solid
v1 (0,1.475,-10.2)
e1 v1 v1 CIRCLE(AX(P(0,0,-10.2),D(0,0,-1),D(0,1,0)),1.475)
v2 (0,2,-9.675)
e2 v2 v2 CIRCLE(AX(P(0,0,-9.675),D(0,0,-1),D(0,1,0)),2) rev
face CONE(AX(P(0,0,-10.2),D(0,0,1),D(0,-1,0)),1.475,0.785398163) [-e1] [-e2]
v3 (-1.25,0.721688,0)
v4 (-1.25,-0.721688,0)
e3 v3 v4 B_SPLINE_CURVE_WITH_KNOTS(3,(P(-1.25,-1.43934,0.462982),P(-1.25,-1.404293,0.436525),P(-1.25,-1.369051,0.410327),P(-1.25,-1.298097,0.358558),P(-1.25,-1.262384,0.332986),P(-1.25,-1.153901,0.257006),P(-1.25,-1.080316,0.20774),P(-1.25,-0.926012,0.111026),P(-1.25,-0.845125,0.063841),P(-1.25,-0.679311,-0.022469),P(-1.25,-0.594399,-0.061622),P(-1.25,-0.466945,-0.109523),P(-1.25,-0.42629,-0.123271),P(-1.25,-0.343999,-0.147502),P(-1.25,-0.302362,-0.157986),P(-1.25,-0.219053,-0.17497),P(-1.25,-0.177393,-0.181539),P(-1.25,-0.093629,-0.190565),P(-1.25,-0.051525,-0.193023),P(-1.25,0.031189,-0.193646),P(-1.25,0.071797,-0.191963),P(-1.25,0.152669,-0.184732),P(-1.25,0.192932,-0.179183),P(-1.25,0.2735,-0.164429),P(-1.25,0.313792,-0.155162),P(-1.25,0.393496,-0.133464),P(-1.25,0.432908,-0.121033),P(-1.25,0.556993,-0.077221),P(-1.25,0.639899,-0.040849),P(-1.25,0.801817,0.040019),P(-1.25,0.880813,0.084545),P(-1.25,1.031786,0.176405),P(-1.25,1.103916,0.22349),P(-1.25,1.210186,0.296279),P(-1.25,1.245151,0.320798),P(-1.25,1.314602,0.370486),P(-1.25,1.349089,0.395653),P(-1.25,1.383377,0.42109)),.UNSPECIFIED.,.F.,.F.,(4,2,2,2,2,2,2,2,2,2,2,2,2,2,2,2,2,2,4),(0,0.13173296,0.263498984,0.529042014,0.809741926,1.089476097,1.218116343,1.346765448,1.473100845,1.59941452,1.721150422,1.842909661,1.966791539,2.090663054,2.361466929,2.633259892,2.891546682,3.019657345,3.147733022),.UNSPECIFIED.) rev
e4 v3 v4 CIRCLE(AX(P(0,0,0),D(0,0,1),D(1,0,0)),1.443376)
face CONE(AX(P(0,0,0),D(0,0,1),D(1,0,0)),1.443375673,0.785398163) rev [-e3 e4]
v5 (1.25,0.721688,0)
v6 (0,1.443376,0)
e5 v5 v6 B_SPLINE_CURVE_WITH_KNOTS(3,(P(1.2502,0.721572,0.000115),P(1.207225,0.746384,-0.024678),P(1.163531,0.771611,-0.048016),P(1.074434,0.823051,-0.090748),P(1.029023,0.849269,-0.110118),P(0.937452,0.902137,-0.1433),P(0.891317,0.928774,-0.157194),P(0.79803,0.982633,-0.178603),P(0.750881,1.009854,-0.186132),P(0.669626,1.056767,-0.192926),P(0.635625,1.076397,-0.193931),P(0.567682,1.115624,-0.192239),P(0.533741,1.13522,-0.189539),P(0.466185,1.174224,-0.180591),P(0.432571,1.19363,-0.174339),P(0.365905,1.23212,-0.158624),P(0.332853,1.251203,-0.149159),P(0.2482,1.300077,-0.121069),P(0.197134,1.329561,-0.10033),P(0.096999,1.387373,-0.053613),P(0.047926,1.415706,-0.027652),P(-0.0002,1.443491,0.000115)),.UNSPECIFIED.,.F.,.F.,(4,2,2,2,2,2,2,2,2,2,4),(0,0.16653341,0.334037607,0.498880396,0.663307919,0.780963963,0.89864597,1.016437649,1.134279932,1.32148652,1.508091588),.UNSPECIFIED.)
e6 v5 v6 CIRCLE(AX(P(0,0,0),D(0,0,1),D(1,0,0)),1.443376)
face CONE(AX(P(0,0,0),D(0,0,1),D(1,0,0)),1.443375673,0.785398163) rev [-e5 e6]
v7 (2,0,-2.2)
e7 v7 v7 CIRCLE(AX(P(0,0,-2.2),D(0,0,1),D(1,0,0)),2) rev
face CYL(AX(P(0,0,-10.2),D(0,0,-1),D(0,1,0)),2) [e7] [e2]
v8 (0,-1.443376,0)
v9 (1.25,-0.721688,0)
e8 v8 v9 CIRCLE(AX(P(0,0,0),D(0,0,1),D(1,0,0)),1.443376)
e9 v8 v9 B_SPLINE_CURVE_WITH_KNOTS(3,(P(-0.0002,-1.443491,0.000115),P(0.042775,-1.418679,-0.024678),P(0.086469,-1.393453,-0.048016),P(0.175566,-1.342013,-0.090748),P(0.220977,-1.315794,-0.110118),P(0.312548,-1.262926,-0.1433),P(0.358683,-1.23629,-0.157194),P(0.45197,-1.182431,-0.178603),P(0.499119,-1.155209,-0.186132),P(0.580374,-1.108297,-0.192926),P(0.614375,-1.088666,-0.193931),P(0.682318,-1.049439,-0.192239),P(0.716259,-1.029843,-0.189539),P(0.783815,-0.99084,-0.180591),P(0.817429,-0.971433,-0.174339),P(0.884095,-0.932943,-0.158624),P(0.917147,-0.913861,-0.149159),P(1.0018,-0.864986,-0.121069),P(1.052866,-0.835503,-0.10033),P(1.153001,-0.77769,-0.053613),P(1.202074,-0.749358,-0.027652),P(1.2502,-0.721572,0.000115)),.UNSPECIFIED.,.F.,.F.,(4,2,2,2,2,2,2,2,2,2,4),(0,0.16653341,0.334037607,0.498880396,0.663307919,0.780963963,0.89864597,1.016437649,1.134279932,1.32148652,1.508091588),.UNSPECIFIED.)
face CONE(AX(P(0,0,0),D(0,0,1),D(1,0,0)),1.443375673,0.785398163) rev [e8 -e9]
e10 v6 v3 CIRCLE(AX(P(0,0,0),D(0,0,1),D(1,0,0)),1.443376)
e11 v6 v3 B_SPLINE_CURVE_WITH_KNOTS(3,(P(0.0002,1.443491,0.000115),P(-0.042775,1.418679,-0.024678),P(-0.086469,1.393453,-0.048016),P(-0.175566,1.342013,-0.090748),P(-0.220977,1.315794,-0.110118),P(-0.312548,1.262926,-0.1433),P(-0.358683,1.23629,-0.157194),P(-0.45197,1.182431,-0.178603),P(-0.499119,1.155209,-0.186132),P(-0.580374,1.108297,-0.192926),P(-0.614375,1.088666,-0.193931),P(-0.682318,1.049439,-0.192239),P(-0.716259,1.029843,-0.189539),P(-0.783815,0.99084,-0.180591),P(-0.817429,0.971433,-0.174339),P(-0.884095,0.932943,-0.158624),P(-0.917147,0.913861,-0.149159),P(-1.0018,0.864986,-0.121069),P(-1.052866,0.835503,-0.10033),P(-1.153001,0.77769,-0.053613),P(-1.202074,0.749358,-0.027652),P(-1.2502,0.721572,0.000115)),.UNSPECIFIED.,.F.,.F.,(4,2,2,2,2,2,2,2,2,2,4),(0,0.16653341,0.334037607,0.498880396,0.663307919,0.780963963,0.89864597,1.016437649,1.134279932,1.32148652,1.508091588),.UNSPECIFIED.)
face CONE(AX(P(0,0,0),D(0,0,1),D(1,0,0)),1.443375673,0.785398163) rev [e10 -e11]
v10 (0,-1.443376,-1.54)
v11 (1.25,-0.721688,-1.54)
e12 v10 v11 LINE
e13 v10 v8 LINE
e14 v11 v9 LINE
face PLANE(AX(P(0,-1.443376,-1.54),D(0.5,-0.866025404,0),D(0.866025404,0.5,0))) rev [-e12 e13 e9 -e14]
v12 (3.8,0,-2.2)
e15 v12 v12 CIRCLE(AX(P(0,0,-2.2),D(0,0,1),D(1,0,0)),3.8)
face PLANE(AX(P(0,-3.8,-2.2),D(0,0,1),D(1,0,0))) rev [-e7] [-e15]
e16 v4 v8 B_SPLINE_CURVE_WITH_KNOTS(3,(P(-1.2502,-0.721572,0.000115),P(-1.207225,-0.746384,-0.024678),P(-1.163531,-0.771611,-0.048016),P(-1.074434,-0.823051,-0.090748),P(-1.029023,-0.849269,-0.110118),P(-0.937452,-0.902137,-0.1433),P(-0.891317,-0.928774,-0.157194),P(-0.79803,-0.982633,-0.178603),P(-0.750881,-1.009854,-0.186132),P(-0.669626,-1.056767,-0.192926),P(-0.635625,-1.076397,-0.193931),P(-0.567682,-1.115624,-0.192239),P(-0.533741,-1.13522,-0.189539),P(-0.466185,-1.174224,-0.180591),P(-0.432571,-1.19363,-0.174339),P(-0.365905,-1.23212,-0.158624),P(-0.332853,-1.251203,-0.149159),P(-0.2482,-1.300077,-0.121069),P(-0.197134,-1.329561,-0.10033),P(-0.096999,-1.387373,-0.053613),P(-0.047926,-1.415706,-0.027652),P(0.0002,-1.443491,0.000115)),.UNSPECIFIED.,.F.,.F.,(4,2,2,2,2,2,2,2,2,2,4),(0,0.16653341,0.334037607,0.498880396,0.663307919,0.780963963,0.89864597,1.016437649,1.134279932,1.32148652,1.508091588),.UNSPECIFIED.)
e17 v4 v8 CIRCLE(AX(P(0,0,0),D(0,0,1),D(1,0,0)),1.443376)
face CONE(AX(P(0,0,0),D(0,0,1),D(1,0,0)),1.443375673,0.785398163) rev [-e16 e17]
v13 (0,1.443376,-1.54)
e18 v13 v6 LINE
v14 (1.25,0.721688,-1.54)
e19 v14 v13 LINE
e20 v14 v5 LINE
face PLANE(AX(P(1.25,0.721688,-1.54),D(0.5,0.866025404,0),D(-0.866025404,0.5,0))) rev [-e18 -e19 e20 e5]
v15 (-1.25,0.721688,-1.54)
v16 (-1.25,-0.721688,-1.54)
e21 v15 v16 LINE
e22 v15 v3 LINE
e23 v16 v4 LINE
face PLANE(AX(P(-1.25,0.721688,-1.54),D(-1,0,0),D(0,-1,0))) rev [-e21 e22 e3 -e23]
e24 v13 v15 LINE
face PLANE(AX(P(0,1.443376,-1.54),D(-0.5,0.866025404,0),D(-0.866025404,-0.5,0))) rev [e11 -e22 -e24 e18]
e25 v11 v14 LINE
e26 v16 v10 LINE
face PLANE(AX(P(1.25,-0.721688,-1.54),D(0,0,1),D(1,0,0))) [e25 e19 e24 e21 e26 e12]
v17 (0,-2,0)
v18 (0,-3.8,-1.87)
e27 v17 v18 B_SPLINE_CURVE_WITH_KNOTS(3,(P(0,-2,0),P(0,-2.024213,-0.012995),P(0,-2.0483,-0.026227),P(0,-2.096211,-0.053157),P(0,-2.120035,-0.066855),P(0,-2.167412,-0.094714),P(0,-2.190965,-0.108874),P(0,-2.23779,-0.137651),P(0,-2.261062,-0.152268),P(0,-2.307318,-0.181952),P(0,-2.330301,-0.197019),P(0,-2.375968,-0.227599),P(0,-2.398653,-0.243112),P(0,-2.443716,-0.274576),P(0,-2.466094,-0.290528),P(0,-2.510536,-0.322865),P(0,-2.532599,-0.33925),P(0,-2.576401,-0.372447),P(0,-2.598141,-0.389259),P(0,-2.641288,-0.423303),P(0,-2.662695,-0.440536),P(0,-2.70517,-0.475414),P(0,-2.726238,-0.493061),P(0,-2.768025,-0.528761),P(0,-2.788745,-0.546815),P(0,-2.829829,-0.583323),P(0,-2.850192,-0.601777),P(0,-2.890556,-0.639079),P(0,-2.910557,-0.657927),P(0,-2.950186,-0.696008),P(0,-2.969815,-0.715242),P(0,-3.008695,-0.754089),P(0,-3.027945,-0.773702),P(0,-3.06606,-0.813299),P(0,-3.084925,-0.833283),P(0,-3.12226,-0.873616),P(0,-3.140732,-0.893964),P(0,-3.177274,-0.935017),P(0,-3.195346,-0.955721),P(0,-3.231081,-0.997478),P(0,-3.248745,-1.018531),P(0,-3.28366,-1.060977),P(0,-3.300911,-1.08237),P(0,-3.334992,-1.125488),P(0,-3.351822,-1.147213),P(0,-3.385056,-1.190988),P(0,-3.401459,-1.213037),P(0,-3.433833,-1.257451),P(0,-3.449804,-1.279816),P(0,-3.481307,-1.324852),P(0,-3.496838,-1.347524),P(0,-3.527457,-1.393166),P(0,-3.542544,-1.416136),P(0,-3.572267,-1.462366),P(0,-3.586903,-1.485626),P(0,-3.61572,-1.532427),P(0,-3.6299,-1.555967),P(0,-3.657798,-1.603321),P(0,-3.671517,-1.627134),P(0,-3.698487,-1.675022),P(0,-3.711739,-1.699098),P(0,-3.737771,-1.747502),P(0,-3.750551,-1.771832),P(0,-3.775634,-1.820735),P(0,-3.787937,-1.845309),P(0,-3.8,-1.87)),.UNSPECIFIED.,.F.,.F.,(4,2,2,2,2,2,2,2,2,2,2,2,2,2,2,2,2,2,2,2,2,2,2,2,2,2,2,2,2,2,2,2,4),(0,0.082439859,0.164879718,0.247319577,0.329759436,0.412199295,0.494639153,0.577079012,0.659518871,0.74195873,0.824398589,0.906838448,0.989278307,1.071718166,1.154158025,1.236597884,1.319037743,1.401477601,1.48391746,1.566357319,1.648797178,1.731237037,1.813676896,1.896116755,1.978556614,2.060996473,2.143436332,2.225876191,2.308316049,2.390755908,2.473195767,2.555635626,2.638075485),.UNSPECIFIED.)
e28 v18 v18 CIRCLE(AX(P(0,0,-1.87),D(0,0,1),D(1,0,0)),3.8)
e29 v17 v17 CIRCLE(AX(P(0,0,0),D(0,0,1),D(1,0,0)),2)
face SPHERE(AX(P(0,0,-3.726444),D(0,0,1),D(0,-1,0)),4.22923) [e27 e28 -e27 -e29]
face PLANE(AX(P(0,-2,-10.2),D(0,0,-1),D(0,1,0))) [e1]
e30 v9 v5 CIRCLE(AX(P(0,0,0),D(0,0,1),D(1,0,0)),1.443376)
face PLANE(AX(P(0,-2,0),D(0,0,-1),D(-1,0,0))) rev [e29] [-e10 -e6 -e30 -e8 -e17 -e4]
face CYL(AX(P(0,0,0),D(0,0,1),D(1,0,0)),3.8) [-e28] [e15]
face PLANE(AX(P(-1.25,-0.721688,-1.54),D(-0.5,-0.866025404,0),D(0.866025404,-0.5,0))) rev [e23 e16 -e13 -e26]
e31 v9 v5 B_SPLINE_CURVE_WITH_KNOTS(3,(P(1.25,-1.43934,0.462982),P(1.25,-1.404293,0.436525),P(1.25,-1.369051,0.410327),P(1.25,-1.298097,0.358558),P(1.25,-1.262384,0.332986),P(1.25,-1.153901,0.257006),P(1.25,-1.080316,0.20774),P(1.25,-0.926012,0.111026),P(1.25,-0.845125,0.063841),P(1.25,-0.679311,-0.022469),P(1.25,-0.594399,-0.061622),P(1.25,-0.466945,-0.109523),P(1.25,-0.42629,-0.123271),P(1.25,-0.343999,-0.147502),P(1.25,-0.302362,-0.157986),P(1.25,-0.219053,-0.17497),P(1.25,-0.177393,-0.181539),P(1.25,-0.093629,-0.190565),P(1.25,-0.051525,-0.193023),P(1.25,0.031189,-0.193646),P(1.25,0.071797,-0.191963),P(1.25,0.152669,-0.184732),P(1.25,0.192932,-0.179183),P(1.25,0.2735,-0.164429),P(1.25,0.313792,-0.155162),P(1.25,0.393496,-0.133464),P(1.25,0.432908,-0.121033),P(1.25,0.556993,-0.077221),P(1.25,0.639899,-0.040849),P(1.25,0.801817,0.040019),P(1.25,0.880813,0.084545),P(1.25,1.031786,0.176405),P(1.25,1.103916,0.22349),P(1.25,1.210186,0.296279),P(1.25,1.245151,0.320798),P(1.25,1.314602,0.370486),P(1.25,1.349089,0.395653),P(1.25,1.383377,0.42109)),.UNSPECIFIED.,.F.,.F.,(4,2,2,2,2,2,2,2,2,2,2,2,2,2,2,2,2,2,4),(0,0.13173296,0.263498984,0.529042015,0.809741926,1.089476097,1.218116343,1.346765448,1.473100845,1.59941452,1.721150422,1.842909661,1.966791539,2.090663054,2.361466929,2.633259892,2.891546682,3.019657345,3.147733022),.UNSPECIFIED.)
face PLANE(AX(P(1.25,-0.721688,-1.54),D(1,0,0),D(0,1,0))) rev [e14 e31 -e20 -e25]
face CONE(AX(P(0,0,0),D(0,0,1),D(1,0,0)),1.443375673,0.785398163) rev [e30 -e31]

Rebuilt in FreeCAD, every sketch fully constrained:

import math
import FreeCAD as App
import Part
import Sketcher

V = App.Vector
Q = App.Units.Quantity


def edges_at(feature, points):
    """Names of the edges that pass closest to the given points."""
    edges = feature.Shape.Edges
    near = lambda p: min(range(len(edges)), key=lambda i: edges[i].distToShape(Part.Vertex(*p))[0])
    return sorted({f"Edge{near(p) + 1}" for p in points})

doc = App.newDocument("Part")
params = doc.addObject("Spreadsheet::Sheet", "Params")
for row, (alias, value) in enumerate([
    ("sketch1_width", "2 mm"),
    ("sketch1_height", "8 mm"),
    ("revolution_angle", "360 deg"),
    ("chamfer_size", "0.525 mm"),
    ("sketch2_width", "2 mm"),
    ("sketch2_width2", "3.8 mm"),
    ("sketch2_height", "2.2 mm"),
    ("sketch2_height2", "0.33 mm"),
    ("revolution2_angle", "360 deg"),
    ("pocket1_length", "1.54 mm"),
    ("groove_angle", "360 deg"),
], start=1):
    params.set(f"A{row}", alias)
    params.set(f"B{row}", "=" + value)
    params.setAlias(f"B{row}", alias)

body = doc.addObject("PartDesign::Body", "Body")

# Sketch on YZ plane
sketch1 = body.newObject("Sketcher::SketchObject", "Sketch")
sketch1.AttachmentSupport = (doc.getObject("YZ_Plane"), [""])
sketch1.MapMode = "FlatFace"
sketch1.addGeometry([
    Part.LineSegment(V(2, -2.2, 0), V(0, -2.2, 0)),
    Part.LineSegment(V(0, -2.2, 0), V(0, -10.2, 0)),
    Part.LineSegment(V(0, -10.2, 0), V(2, -10.2, 0)),
    Part.LineSegment(V(2, -10.2, 0), V(2, -2.2, 0)),
], False)
sketch1.addConstraint([
    Sketcher.Constraint("Coincident", 0, 2, 1, 1),
    Sketcher.Constraint("Coincident", 1, 2, 2, 1),
    Sketcher.Constraint("Coincident", 2, 2, 3, 1),
    Sketcher.Constraint("Coincident", 3, 2, 0, 1),
    Sketcher.Constraint("Horizontal", 0),
    Sketcher.Constraint("Vertical", 1),
    Sketcher.Constraint("Horizontal", 2),
    Sketcher.Constraint("Vertical", 3),
    Sketcher.Constraint("PointOnObject", 0, 2, -2),
    Sketcher.Constraint("DistanceX", 0, 2, 0, 1, Q("2 mm")),
    Sketcher.Constraint("DistanceY", 1, 2, 1, 1, Q("8 mm")),
    Sketcher.Constraint("DistanceY", 0, 2, -1, 1, Q("2.2 mm")),
])
sketch1.setExpression("Constraints[9]", "Params.sketch1_width")
sketch1.setExpression("Constraints[10]", "Params.sketch1_height")
revolution = body.newObject("PartDesign::Revolution", "Revolution")
revolution.Profile = sketch1
revolution.ReferenceAxis = (sketch1, ["V_Axis"])
revolution.setExpression("Angle", "Params.revolution_angle")
doc.recompute()

chamfer = body.newObject("PartDesign::Chamfer", "Chamfer")
chamfer.Base = (revolution, edges_at(revolution, [(0, -2, -10.2)]))
chamfer.setExpression("Size", "Params.chamfer_size")

# Sketch on YZ plane
sketch2 = body.newObject("Sketcher::SketchObject", "Sketch001")
sketch2.AttachmentSupport = (doc.getObject("YZ_Plane"), [""])
sketch2.MapMode = "FlatFace"
sketch2.addGeometry([
    Part.LineSegment(V(3.8, -2.2, 0), V(3.8, -1.87, 0)),  # 0
    Part.ArcOfCircle(Part.Circle(V(0, -3.73, 0), V(0, 0, 1), 4.23), math.radians(26), math.radians(62)),  # 1
    Part.LineSegment(V(2, 0, 0), V(0, 0, 0)),  # 2
    Part.LineSegment(V(0, 0, 0), V(0, -2.2, 0)),  # 3
    Part.LineSegment(V(0, -2.2, 0), V(3.8, -2.2, 0)),  # 4
], False)
sketch2.addConstraint([
    Sketcher.Constraint("Coincident", 0, 2, 1, 1),
    Sketcher.Constraint("Coincident", 1, 2, 2, 1),
    Sketcher.Constraint("Coincident", 2, 2, 3, 1),
    Sketcher.Constraint("Coincident", 3, 2, 4, 1),
    Sketcher.Constraint("Coincident", 4, 2, 0, 1),
    Sketcher.Constraint("Vertical", 0),
    Sketcher.Constraint("Horizontal", 2),
    Sketcher.Constraint("Vertical", 3),
    Sketcher.Constraint("Horizontal", 4),
    Sketcher.Constraint("Coincident", 2, 2, -1, 1),
    Sketcher.Constraint("PointOnObject", 1, 3, -2),
    Sketcher.Constraint("DistanceX", 2, 2, 2, 1, Q("2 mm")),
    Sketcher.Constraint("DistanceX", 4, 1, 4, 2, Q("3.8 mm")),
    Sketcher.Constraint("DistanceY", 3, 2, 3, 1, Q("2.2 mm")),
    Sketcher.Constraint("DistanceY", 0, 1, 0, 2, Q("0.33 mm")),
])
sketch2.setExpression("Constraints[11]", "Params.sketch2_width")
sketch2.setExpression("Constraints[12]", "Params.sketch2_width2")
sketch2.setExpression("Constraints[13]", "Params.sketch2_height")
sketch2.setExpression("Constraints[14]", "Params.sketch2_height2")
revolution2 = body.newObject("PartDesign::Revolution", "Revolution001")
revolution2.Profile = sketch2
revolution2.ReferenceAxis = (sketch2, ["V_Axis"])
revolution2.setExpression("Angle", "Params.revolution2_angle")

# Sketch on XY plane
sketch3 = body.newObject("Sketcher::SketchObject", "Sketch002")
sketch3.AttachmentSupport = (doc.getObject("XY_Plane"), [""])
sketch3.MapMode = "FlatFace"
sketch3.addGeometry([
    Part.LineSegment(V(1.2, -0.7, 0), V(1.2, 0.7, 0)),  # 0
    Part.LineSegment(V(1.2, 0.7, 0), V(0, 1.4, 0)),  # 1
    Part.LineSegment(V(0, 1.4, 0), V(-1.2, 0.7, 0)),  # 2
    Part.LineSegment(V(-1.2, 0.7, 0), V(-1.2, -0.7, 0)),  # 3
    Part.LineSegment(V(-1.2, -0.7, 0), V(0, -1.4, 0)),  # 4
    Part.LineSegment(V(0, -1.4, 0), V(1.2, -0.7, 0)),  # 5
], False)
sketch3.addConstraint([
    Sketcher.Constraint("Coincident", 0, 2, 1, 1),
    Sketcher.Constraint("Coincident", 1, 2, 2, 1),
    Sketcher.Constraint("Coincident", 2, 2, 3, 1),
    Sketcher.Constraint("Coincident", 3, 2, 4, 1),
    Sketcher.Constraint("Coincident", 4, 2, 5, 1),
    Sketcher.Constraint("Coincident", 5, 2, 0, 1),
    Sketcher.Constraint("Vertical", 0),
    Sketcher.Constraint("Vertical", 3),
    Sketcher.Constraint("Symmetric", 0, 2, 3, 2, -1, 1),
    Sketcher.Constraint("Symmetric", 1, 2, 4, 2, -1, 1),
    Sketcher.Constraint("PointOnObject", 1, 2, -2),
    Sketcher.Constraint("Parallel", 2, 5),
    Sketcher.Constraint("Horizontal", 0, 2, 2, 2),
    Sketcher.Constraint("Angle", 1, Q("150 deg")),
    Sketcher.Constraint("DistanceX", 2, 2, 0, 2, Q("2.5 mm")),
    Sketcher.Constraint("DistanceY", 0, 1, 0, 2, Q("1.443376 mm")),
])
pocket1 = body.newObject("PartDesign::Pocket", "Pocket")
pocket1.Profile = sketch3
pocket1.setExpression("Length", "Params.pocket1_length")

# Sketch on YZ plane
sketch4 = body.newObject("Sketcher::SketchObject", "Sketch003")
sketch4.AttachmentSupport = (doc.getObject("YZ_Plane"), [""])
sketch4.MapMode = "FlatFace"
sketch4.addGeometry([
    Part.LineSegment(V(0, 0, 0), V(-1.4, 0, 0)),
    Part.LineSegment(V(-1.4, 0, 0), V(0, -1.4, 0)),
    Part.LineSegment(V(0, -1.4, 0), V(0, 0, 0)),
], False)
sketch4.addConstraint([
    Sketcher.Constraint("Coincident", 0, 2, 1, 1),
    Sketcher.Constraint("Coincident", 1, 2, 2, 1),
    Sketcher.Constraint("Coincident", 2, 2, 0, 1),
    Sketcher.Constraint("Horizontal", 0),
    Sketcher.Constraint("Vertical", 2),
    Sketcher.Constraint("Coincident", 2, 2, -1, 1),
    Sketcher.Constraint("Equal", 0, 2),
    Sketcher.Constraint("Distance", 1, Q("2.041241 mm")),
])
groove = body.newObject("PartDesign::Groove", "Groove")
groove.Profile = sketch4
groove.ReferenceAxis = (sketch4, ["V_Axis"])
groove.setExpression("Angle", "Params.groove_angle")

doc.recompute()
